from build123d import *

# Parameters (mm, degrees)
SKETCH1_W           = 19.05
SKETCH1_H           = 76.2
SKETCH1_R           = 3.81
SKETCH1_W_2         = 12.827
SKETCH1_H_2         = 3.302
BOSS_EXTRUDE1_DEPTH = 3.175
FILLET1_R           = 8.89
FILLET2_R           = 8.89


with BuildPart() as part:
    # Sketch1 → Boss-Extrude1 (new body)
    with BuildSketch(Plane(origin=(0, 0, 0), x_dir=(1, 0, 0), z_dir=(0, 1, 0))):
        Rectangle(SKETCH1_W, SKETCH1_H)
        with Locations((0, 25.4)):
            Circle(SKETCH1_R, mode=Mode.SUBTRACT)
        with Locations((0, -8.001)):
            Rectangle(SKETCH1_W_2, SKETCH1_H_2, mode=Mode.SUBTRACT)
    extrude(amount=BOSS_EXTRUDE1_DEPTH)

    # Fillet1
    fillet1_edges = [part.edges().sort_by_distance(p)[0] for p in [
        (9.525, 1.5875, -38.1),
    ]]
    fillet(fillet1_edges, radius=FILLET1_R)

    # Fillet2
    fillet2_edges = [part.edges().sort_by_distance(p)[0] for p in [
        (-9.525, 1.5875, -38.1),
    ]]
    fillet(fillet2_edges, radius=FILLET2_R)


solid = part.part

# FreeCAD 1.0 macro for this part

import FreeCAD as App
import Part
import Sketcher
from FreeCAD import Vector
Q = App.Units.Quantity


def edges_at(feature, points):
    """Names of the edges that pass closest to the given points."""
    edges = feature.Shape.Edges
    near = lambda p: min(range(len(edges)), key=lambda i: edges[i].distToShape(Part.Vertex(*p))[0])
    return sorted({f"Edge{near(p) + 1}" for p in points})

doc = App.newDocument("Part")
body = doc.addObject("PartDesign::Body", "Body")

# Sketch on XZ plane
sketch1 = body.newObject("Sketcher::SketchObject", "Sketch")
sketch1.AttachmentSupport = (doc.getObject("XZ_Plane"), [""])
sketch1.MapMode = "FlatFace"
sketch1.addGeometry([
    Part.LineSegment(Vector(-9.525, -38.1, 0), Vector(-9.525, 38.1, 0)),  # 0
    Part.LineSegment(Vector(-9.525, 38.1, 0), Vector(9.525, 38.1, 0)),  # 1
    Part.LineSegment(Vector(9.525, 38.1, 0), Vector(9.525, -38.1, 0)),  # 2
    Part.LineSegment(Vector(9.525, -38.1, 0), Vector(-9.525, -38.1, 0)),  # 3
    Part.LineSegment(Vector(6.4135, 9.652, 0), Vector(-6.4135, 9.652, 0)),  # 4
    Part.LineSegment(Vector(-6.4135, 9.652, 0), Vector(-6.4135, 6.35, 0)),  # 5
    Part.LineSegment(Vector(-6.4135, 6.35, 0), Vector(6.4135, 6.35, 0)),  # 6
    Part.LineSegment(Vector(6.4135, 6.35, 0), Vector(6.4135, 9.652, 0)),  # 7
    Part.Circle(Vector(0, -25.4, 0), Vector(0, 0, 1), 3.81),  # 8
], False)
sketch1.addConstraint([
    Sketcher.Constraint("Coincident", 0, 2, 1, 1),
    Sketcher.Constraint("Coincident", 1, 2, 2, 1),
    Sketcher.Constraint("Coincident", 2, 2, 3, 1),
    Sketcher.Constraint("Coincident", 3, 2, 0, 1),
    Sketcher.Constraint("Coincident", 4, 2, 5, 1),
    Sketcher.Constraint("Coincident", 5, 2, 6, 1),
    Sketcher.Constraint("Coincident", 6, 2, 7, 1),
    Sketcher.Constraint("Coincident", 7, 2, 4, 1),
    Sketcher.Constraint("Vertical", 0),
    Sketcher.Constraint("Horizontal", 1),
    Sketcher.Constraint("Vertical", 2),
    Sketcher.Constraint("Horizontal", 3),
    Sketcher.Constraint("Horizontal", 4),
    Sketcher.Constraint("Vertical", 5),
    Sketcher.Constraint("Horizontal", 6),
    Sketcher.Constraint("Vertical", 7),
    Sketcher.Constraint("Symmetric", 0, 2, 2, 2, -1, 1),
    Sketcher.Constraint("PointOnObject", 8, 3, -2),
    Sketcher.Constraint("Diameter", 8, Q("0.3 in")),
    Sketcher.Constraint("DistanceY", 0, 1, 0, 2, Q("3 in")),
    Sketcher.Constraint("DistanceY", 8, 3, -1, 1, Q("1 in")),
    Sketcher.Constraint("DistanceX", 1, 1, 1, 2, Q("0.75 in")),
    Sketcher.Constraint("DistanceY", 5, 2, 5, 1, Q("0.13 in")),
    Sketcher.Constraint("DistanceX", 4, 2, 4, 1, Q("0.505 in")),
    Sketcher.Constraint("DistanceY", -1, 1, 4, 2, Q("0.38 in")),
    Sketcher.Constraint("DistanceX", 4, 2, -1, 1, Q("0.2525 in")),
])
pad1 = body.newObject("PartDesign::Pad", "Pad")
pad1.Profile = sketch1
pad1.Length = Q("0.125 in")
pad1.Reversed = True
doc.recompute()

fillet = body.newObject("PartDesign::Fillet", "Fillet")
fillet.Base = (pad1, edges_at(pad1, [(9.525, 1.587, -38.1)]))
fillet.Radius = Q("0.35 in")
doc.recompute()

fillet2 = body.newObject("PartDesign::Fillet", "Fillet001")
fillet2.Base = (fillet, edges_at(fillet, [(-9.525, 1.587, -38.1)]))
fillet2.Radius = Q("0.35 in")

doc.recompute()
